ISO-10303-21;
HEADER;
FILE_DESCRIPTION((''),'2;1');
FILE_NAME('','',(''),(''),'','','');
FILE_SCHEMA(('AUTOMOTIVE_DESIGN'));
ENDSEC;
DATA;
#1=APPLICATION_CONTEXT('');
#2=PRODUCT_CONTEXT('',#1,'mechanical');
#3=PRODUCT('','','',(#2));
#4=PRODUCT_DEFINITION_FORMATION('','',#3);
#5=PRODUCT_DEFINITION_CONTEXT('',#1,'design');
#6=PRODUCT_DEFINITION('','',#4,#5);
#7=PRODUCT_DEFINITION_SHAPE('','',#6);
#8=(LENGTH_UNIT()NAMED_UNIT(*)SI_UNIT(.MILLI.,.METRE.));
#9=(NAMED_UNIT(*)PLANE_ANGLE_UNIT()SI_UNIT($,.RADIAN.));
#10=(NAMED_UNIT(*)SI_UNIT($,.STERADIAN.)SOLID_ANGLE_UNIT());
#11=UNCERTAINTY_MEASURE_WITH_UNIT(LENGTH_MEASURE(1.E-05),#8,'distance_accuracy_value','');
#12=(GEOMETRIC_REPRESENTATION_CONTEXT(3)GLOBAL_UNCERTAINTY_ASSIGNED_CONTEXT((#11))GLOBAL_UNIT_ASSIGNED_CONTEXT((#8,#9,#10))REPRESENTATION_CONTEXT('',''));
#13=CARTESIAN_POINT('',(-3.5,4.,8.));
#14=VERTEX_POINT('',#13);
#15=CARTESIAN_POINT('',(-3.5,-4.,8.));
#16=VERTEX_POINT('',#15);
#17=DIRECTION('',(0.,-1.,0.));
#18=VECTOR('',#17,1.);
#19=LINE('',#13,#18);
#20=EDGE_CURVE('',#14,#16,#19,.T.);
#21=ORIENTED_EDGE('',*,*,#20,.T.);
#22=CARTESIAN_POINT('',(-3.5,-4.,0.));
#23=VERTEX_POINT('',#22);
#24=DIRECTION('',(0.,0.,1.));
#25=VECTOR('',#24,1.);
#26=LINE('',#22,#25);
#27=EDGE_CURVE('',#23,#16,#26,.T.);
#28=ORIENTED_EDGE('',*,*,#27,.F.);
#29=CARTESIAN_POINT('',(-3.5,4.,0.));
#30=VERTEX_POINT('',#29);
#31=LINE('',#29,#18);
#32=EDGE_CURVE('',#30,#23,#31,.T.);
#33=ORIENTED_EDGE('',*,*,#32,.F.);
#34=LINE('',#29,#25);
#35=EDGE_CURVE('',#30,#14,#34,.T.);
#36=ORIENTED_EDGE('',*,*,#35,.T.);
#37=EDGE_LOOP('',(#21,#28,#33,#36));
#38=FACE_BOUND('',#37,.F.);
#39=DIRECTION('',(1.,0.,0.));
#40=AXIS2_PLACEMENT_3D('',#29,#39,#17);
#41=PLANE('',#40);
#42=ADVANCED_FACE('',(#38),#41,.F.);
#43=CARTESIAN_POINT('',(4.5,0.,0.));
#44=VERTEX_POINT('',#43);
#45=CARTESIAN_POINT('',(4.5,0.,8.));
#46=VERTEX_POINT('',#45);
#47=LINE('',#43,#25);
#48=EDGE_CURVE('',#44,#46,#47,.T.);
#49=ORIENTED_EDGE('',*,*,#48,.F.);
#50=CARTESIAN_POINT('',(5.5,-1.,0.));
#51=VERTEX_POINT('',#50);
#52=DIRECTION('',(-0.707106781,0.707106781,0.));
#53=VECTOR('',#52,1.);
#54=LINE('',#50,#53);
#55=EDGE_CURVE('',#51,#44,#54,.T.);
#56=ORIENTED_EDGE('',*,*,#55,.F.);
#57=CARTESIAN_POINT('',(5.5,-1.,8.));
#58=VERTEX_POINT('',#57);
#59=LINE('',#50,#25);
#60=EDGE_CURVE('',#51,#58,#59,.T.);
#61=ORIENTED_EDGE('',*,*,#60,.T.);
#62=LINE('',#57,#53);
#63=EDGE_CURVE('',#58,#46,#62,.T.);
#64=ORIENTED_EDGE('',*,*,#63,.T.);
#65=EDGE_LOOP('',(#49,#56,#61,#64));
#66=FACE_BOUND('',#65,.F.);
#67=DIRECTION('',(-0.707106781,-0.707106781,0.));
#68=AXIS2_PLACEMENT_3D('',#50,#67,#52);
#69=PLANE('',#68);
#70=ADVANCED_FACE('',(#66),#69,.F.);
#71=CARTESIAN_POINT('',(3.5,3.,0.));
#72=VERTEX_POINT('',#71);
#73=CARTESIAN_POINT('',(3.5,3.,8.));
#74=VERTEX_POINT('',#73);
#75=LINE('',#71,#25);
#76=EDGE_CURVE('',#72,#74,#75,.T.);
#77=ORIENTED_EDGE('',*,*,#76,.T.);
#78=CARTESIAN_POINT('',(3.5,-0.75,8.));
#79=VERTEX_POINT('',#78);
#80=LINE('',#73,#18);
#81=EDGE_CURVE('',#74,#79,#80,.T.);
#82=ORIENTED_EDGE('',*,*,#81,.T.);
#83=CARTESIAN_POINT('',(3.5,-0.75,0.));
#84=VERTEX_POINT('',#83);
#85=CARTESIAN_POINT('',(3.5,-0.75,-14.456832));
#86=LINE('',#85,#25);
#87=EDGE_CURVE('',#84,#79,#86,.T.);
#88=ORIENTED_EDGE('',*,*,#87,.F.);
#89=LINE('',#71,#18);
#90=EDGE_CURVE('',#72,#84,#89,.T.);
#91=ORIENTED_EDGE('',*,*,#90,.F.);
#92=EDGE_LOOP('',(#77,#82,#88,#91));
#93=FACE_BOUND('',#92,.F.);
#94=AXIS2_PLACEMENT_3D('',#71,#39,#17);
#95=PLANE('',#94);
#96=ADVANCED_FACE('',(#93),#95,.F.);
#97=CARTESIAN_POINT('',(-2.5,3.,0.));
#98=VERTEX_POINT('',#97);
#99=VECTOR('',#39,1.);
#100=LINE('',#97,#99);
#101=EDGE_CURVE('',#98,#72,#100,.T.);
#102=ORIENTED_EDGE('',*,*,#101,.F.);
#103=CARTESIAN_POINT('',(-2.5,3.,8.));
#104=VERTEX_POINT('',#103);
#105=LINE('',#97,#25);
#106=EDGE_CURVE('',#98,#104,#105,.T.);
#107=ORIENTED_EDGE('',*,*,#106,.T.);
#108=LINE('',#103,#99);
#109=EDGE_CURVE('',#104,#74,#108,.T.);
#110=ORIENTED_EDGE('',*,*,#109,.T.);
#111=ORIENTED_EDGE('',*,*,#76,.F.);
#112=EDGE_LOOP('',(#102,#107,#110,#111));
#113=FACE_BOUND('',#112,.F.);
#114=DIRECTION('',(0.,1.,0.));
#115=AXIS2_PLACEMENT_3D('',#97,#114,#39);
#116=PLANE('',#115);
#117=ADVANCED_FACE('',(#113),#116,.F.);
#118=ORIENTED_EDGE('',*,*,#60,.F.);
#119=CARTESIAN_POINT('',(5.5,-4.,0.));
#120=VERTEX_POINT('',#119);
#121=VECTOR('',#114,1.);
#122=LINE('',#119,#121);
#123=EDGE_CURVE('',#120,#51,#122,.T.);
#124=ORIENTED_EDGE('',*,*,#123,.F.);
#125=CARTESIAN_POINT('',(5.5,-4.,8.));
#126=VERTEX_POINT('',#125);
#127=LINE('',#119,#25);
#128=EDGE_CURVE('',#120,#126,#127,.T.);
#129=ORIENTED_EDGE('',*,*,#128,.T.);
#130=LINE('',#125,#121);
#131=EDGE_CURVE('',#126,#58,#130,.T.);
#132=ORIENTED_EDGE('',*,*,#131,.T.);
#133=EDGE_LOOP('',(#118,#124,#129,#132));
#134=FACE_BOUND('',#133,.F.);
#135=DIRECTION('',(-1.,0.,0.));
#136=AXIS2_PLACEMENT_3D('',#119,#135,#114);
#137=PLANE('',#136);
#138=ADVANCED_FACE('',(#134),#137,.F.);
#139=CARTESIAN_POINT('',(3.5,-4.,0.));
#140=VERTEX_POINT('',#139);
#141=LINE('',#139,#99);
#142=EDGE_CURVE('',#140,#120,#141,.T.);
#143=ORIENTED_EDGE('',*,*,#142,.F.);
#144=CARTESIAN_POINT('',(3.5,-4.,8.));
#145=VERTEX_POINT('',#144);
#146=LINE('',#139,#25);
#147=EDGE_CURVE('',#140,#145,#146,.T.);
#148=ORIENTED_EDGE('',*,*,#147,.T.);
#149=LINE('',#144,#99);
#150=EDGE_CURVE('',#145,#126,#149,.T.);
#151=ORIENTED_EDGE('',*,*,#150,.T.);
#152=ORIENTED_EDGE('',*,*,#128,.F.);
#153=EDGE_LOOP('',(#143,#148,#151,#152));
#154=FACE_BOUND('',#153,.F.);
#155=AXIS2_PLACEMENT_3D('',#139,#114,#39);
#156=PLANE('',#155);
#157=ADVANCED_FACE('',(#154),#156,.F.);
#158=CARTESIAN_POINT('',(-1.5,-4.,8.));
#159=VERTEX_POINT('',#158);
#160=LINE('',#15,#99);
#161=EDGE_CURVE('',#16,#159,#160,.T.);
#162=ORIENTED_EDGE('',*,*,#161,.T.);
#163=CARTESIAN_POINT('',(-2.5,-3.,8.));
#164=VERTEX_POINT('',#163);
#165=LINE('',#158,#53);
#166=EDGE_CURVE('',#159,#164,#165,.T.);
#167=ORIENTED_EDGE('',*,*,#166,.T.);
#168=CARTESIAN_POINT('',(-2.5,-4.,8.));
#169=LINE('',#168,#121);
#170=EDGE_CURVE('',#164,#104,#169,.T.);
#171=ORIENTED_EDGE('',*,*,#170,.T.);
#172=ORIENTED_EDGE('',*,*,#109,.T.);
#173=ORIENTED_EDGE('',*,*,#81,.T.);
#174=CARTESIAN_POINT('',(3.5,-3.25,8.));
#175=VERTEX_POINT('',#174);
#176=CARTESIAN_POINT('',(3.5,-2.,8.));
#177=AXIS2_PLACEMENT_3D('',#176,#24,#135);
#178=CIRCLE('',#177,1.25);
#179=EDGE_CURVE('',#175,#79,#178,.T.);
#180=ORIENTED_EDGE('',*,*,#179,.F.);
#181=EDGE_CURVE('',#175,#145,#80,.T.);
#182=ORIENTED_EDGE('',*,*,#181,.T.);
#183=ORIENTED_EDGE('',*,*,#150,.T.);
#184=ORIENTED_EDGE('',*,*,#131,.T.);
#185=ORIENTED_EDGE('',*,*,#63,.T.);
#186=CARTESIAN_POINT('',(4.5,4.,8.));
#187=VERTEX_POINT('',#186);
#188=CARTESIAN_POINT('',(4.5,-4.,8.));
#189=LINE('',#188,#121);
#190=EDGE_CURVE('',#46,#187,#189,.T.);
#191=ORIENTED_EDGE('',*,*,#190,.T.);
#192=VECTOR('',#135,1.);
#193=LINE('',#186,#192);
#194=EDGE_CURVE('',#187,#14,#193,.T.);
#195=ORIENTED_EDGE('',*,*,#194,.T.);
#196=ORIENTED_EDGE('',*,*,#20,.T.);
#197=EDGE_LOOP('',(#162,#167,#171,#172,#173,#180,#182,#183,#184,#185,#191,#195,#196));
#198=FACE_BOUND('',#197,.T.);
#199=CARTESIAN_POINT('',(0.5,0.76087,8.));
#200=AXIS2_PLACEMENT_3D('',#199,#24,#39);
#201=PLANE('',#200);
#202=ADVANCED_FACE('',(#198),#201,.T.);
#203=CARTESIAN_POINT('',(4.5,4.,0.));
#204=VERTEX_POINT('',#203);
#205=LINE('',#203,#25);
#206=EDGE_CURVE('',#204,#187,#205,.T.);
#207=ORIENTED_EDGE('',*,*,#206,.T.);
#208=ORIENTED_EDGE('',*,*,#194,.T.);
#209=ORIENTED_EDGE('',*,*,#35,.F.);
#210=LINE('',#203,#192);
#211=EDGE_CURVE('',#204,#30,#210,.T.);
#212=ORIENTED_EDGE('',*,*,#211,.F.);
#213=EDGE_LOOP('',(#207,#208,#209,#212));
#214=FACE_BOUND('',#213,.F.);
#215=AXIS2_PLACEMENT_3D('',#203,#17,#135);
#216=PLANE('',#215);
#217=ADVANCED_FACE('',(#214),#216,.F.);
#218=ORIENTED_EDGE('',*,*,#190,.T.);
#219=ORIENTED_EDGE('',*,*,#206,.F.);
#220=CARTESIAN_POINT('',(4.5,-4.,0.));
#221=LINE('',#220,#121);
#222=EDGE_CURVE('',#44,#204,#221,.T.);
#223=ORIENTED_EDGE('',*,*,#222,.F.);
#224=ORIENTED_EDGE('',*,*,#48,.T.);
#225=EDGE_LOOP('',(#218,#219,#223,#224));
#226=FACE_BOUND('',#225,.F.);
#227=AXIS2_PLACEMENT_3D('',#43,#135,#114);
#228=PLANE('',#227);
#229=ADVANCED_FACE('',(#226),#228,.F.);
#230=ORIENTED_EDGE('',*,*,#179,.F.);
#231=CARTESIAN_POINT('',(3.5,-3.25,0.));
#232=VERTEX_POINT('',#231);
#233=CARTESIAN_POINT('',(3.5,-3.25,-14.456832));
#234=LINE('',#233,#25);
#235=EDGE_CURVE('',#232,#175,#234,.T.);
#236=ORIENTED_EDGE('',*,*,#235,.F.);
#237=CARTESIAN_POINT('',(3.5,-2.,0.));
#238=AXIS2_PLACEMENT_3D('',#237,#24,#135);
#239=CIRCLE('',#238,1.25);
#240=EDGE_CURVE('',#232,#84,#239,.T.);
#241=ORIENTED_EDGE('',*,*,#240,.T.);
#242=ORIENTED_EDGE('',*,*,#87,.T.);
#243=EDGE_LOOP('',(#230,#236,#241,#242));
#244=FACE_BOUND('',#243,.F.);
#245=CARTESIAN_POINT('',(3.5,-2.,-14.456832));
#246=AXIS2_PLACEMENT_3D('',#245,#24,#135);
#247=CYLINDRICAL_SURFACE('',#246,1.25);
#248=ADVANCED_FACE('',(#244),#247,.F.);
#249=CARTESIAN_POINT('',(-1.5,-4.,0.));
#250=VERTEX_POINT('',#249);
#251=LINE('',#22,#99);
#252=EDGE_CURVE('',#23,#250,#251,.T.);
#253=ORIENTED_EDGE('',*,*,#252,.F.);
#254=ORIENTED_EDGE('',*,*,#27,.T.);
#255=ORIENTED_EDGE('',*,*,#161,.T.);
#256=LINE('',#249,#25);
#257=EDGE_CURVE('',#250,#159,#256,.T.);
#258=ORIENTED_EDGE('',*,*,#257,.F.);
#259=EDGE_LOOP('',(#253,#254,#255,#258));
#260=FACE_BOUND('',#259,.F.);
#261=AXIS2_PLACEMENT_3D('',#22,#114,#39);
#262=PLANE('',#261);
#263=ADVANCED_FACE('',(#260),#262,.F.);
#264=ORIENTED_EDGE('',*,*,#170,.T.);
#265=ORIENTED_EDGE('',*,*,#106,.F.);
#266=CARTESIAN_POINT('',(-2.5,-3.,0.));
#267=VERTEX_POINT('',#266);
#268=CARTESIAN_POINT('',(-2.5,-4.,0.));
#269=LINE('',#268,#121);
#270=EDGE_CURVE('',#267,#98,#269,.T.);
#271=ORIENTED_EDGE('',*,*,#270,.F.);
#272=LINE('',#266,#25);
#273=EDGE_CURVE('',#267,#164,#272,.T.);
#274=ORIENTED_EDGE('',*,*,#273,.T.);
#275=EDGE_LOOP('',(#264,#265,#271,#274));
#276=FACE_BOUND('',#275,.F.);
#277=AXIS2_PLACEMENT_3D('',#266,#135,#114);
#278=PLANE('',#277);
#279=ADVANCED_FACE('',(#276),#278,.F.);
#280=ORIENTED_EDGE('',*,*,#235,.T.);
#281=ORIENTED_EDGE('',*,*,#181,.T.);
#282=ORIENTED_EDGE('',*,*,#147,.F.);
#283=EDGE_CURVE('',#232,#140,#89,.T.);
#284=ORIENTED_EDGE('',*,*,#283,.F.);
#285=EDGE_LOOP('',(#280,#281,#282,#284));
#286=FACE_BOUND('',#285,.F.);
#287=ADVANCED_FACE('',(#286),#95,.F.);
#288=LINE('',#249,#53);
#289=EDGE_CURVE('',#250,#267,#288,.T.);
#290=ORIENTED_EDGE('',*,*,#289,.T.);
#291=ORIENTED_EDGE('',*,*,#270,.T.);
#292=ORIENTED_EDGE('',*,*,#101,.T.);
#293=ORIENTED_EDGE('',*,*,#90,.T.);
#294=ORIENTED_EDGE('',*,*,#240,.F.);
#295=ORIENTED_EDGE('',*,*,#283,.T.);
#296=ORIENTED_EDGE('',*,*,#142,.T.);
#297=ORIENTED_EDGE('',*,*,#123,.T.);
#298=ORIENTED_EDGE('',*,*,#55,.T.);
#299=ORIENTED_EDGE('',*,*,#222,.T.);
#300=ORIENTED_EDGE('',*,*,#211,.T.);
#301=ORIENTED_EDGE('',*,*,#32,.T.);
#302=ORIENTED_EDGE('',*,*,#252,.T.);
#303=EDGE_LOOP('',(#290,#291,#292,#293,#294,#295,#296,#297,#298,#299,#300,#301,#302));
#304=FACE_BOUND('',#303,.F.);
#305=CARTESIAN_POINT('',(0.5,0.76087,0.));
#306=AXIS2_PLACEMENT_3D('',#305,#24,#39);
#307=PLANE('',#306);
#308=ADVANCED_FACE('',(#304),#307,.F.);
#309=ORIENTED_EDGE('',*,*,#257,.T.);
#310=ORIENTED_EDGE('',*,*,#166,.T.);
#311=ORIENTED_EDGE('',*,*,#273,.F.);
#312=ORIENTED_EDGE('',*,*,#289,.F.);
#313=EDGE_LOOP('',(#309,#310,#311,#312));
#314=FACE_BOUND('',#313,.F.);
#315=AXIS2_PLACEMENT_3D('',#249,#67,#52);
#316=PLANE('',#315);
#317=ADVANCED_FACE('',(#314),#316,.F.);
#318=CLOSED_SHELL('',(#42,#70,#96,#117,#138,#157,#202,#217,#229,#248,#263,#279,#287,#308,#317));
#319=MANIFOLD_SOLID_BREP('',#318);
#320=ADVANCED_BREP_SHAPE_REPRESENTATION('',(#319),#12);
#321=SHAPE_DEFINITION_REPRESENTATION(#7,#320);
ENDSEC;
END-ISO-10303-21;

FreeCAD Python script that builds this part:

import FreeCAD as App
import Part
import Sketcher
Q = App.Units.Quantity

doc = App.newDocument("Part")
body = doc.addObject("PartDesign::Body", "Body")

sketch1 = doc.addObject("Sketcher::SketchObject", "Sketch")
body.addObject(sketch1)
sketch1.AttachmentSupport = (doc.XY_Plane, [""])
sketch1.MapMode = "FlatFace"
sketch1.addGeometry(Part.LineSegment(App.Vector(-2.5, 3, 0), App.Vector(3.5, 3, 0)), False)
sketch1.addGeometry(Part.LineSegment(App.Vector(3.5, 3, 0), App.Vector(3.5, -4, 0)), False)
sketch1.addGeometry(Part.LineSegment(App.Vector(3.5, -4, 0), App.Vector(5.5, -4, 0)), False)
sketch1.addGeometry(Part.LineSegment(App.Vector(5.5, -4, 0), App.Vector(5.5, -1, 0)), False)
sketch1.addGeometry(Part.LineSegment(App.Vector(5.5, -1, 0), App.Vector(4.5, 0, 0)), False)
sketch1.addGeometry(Part.LineSegment(App.Vector(4.5, 0, 0), App.Vector(4.5, 4, 0)), False)
sketch1.addGeometry(Part.LineSegment(App.Vector(4.5, 4, 0), App.Vector(-3.5, 4, 0)), False)
sketch1.addGeometry(Part.LineSegment(App.Vector(-3.5, 4, 0), App.Vector(-3.5, -4, 0)), False)
sketch1.addGeometry(Part.LineSegment(App.Vector(-3.5, -4, 0), App.Vector(-1.5, -4, 0)), False)
sketch1.addGeometry(Part.LineSegment(App.Vector(-1.5, -4, 0), App.Vector(-2.5, -3, 0)), False)
sketch1.addGeometry(Part.LineSegment(App.Vector(-2.5, -3, 0), App.Vector(-2.5, 3, 0)), False)
sketch1.addConstraint(Sketcher.Constraint("Coincident", 0, 2, 1, 1))
sketch1.addConstraint(Sketcher.Constraint("Coincident", 1, 2, 2, 1))
sketch1.addConstraint(Sketcher.Constraint("Coincident", 2, 2, 3, 1))
sketch1.addConstraint(Sketcher.Constraint("Coincident", 3, 2, 4, 1))
sketch1.addConstraint(Sketcher.Constraint("Coincident", 4, 2, 5, 1))
sketch1.addConstraint(Sketcher.Constraint("Coincident", 5, 2, 6, 1))
sketch1.addConstraint(Sketcher.Constraint("Coincident", 6, 2, 7, 1))
sketch1.addConstraint(Sketcher.Constraint("Coincident", 7, 2, 8, 1))
sketch1.addConstraint(Sketcher.Constraint("Coincident", 8, 2, 9, 1))
sketch1.addConstraint(Sketcher.Constraint("Coincident", 9, 2, 10, 1))
sketch1.addConstraint(Sketcher.Constraint("Coincident", 10, 2, 0, 1))
sketch1.addConstraint(Sketcher.Constraint("Horizontal", 0))
sketch1.addConstraint(Sketcher.Constraint("Vertical", 1))
sketch1.addConstraint(Sketcher.Constraint("Horizontal", 2))
sketch1.addConstraint(Sketcher.Constraint("Vertical", 3))
sketch1.addConstraint(Sketcher.Constraint("Vertical", 5))
sketch1.addConstraint(Sketcher.Constraint("Horizontal", 6))
sketch1.addConstraint(Sketcher.Constraint("Vertical", 7))
sketch1.addConstraint(Sketcher.Constraint("Horizontal", 8))
sketch1.addConstraint(Sketcher.Constraint("Vertical", 10))
sketch1.addConstraint(Sketcher.Constraint("Symmetric", 1, 2, 6, 2, -1, 1))
sketch1.addConstraint(Sketcher.Constraint("PointOnObject", 4, 2, -1))
sketch1.addConstraint(Sketcher.Constraint("Parallel", 4, 9))
sketch1.addConstraint(Sketcher.Constraint("Horizontal", 2, 2, 7, 2))
sketch1.addConstraint(Sketcher.Constraint("Equal", 2, 8))
sketch1.addConstraint(Sketcher.Constraint("Equal", 6, 7))
sketch1.addConstraint(Sketcher.Constraint("Equal", 0, 10))
sketch1.addConstraint(Sketcher.Constraint("Equal", 4, 9))
sketch1.addConstraint(Sketcher.Constraint("DistanceX", 0, 1, 0, 2, Q("6 mm")))
sketch1.addConstraint(Sketcher.Constraint("DistanceX", 2, 1, 2, 2, Q("2 mm")))
sketch1.addConstraint(Sketcher.Constraint("DistanceX", 6, 2, 6, 1, Q("8 mm")))
sketch1.addConstraint(Sketcher.Constraint("DistanceY", 1, 2, 1, 1, Q("7 mm")))
pad1 = doc.addObject("PartDesign::Pad", "Pad")
body.addObject(pad1)
pad1.Profile = sketch1
pad1.Length = 8

sketch2 = doc.addObject("Sketcher::SketchObject", "Sketch001")
body.addObject(sketch2)
sketch2.AttachmentSupport = (doc.XY_Plane, [""])
sketch2.MapMode = "FlatFace"
sketch2.addGeometry(Part.Circle(App.Vector(3.5, -2, 0), App.Vector(0, 0, 1), 1.25), False)
sketch2.addConstraint(Sketcher.Constraint("Diameter", 0, Q("2.5 mm")))
sketch2.addConstraint(Sketcher.Constraint("DistanceY", 0, 3, -1, 1, Q("2 mm")))
sketch2.addConstraint(Sketcher.Constraint("DistanceX", -1, 1, 0, 3, Q("3.5 mm")))
doc.recompute()
hole = doc.addObject("PartDesign::Hole", "Hole")
body.addObject(hole)
hole.Profile = sketch2
hole.ThreadType = "None"
hole.Diameter = 2.5
hole.DepthType = "ThroughAll"
hole.Reversed = True

doc.recompute()
